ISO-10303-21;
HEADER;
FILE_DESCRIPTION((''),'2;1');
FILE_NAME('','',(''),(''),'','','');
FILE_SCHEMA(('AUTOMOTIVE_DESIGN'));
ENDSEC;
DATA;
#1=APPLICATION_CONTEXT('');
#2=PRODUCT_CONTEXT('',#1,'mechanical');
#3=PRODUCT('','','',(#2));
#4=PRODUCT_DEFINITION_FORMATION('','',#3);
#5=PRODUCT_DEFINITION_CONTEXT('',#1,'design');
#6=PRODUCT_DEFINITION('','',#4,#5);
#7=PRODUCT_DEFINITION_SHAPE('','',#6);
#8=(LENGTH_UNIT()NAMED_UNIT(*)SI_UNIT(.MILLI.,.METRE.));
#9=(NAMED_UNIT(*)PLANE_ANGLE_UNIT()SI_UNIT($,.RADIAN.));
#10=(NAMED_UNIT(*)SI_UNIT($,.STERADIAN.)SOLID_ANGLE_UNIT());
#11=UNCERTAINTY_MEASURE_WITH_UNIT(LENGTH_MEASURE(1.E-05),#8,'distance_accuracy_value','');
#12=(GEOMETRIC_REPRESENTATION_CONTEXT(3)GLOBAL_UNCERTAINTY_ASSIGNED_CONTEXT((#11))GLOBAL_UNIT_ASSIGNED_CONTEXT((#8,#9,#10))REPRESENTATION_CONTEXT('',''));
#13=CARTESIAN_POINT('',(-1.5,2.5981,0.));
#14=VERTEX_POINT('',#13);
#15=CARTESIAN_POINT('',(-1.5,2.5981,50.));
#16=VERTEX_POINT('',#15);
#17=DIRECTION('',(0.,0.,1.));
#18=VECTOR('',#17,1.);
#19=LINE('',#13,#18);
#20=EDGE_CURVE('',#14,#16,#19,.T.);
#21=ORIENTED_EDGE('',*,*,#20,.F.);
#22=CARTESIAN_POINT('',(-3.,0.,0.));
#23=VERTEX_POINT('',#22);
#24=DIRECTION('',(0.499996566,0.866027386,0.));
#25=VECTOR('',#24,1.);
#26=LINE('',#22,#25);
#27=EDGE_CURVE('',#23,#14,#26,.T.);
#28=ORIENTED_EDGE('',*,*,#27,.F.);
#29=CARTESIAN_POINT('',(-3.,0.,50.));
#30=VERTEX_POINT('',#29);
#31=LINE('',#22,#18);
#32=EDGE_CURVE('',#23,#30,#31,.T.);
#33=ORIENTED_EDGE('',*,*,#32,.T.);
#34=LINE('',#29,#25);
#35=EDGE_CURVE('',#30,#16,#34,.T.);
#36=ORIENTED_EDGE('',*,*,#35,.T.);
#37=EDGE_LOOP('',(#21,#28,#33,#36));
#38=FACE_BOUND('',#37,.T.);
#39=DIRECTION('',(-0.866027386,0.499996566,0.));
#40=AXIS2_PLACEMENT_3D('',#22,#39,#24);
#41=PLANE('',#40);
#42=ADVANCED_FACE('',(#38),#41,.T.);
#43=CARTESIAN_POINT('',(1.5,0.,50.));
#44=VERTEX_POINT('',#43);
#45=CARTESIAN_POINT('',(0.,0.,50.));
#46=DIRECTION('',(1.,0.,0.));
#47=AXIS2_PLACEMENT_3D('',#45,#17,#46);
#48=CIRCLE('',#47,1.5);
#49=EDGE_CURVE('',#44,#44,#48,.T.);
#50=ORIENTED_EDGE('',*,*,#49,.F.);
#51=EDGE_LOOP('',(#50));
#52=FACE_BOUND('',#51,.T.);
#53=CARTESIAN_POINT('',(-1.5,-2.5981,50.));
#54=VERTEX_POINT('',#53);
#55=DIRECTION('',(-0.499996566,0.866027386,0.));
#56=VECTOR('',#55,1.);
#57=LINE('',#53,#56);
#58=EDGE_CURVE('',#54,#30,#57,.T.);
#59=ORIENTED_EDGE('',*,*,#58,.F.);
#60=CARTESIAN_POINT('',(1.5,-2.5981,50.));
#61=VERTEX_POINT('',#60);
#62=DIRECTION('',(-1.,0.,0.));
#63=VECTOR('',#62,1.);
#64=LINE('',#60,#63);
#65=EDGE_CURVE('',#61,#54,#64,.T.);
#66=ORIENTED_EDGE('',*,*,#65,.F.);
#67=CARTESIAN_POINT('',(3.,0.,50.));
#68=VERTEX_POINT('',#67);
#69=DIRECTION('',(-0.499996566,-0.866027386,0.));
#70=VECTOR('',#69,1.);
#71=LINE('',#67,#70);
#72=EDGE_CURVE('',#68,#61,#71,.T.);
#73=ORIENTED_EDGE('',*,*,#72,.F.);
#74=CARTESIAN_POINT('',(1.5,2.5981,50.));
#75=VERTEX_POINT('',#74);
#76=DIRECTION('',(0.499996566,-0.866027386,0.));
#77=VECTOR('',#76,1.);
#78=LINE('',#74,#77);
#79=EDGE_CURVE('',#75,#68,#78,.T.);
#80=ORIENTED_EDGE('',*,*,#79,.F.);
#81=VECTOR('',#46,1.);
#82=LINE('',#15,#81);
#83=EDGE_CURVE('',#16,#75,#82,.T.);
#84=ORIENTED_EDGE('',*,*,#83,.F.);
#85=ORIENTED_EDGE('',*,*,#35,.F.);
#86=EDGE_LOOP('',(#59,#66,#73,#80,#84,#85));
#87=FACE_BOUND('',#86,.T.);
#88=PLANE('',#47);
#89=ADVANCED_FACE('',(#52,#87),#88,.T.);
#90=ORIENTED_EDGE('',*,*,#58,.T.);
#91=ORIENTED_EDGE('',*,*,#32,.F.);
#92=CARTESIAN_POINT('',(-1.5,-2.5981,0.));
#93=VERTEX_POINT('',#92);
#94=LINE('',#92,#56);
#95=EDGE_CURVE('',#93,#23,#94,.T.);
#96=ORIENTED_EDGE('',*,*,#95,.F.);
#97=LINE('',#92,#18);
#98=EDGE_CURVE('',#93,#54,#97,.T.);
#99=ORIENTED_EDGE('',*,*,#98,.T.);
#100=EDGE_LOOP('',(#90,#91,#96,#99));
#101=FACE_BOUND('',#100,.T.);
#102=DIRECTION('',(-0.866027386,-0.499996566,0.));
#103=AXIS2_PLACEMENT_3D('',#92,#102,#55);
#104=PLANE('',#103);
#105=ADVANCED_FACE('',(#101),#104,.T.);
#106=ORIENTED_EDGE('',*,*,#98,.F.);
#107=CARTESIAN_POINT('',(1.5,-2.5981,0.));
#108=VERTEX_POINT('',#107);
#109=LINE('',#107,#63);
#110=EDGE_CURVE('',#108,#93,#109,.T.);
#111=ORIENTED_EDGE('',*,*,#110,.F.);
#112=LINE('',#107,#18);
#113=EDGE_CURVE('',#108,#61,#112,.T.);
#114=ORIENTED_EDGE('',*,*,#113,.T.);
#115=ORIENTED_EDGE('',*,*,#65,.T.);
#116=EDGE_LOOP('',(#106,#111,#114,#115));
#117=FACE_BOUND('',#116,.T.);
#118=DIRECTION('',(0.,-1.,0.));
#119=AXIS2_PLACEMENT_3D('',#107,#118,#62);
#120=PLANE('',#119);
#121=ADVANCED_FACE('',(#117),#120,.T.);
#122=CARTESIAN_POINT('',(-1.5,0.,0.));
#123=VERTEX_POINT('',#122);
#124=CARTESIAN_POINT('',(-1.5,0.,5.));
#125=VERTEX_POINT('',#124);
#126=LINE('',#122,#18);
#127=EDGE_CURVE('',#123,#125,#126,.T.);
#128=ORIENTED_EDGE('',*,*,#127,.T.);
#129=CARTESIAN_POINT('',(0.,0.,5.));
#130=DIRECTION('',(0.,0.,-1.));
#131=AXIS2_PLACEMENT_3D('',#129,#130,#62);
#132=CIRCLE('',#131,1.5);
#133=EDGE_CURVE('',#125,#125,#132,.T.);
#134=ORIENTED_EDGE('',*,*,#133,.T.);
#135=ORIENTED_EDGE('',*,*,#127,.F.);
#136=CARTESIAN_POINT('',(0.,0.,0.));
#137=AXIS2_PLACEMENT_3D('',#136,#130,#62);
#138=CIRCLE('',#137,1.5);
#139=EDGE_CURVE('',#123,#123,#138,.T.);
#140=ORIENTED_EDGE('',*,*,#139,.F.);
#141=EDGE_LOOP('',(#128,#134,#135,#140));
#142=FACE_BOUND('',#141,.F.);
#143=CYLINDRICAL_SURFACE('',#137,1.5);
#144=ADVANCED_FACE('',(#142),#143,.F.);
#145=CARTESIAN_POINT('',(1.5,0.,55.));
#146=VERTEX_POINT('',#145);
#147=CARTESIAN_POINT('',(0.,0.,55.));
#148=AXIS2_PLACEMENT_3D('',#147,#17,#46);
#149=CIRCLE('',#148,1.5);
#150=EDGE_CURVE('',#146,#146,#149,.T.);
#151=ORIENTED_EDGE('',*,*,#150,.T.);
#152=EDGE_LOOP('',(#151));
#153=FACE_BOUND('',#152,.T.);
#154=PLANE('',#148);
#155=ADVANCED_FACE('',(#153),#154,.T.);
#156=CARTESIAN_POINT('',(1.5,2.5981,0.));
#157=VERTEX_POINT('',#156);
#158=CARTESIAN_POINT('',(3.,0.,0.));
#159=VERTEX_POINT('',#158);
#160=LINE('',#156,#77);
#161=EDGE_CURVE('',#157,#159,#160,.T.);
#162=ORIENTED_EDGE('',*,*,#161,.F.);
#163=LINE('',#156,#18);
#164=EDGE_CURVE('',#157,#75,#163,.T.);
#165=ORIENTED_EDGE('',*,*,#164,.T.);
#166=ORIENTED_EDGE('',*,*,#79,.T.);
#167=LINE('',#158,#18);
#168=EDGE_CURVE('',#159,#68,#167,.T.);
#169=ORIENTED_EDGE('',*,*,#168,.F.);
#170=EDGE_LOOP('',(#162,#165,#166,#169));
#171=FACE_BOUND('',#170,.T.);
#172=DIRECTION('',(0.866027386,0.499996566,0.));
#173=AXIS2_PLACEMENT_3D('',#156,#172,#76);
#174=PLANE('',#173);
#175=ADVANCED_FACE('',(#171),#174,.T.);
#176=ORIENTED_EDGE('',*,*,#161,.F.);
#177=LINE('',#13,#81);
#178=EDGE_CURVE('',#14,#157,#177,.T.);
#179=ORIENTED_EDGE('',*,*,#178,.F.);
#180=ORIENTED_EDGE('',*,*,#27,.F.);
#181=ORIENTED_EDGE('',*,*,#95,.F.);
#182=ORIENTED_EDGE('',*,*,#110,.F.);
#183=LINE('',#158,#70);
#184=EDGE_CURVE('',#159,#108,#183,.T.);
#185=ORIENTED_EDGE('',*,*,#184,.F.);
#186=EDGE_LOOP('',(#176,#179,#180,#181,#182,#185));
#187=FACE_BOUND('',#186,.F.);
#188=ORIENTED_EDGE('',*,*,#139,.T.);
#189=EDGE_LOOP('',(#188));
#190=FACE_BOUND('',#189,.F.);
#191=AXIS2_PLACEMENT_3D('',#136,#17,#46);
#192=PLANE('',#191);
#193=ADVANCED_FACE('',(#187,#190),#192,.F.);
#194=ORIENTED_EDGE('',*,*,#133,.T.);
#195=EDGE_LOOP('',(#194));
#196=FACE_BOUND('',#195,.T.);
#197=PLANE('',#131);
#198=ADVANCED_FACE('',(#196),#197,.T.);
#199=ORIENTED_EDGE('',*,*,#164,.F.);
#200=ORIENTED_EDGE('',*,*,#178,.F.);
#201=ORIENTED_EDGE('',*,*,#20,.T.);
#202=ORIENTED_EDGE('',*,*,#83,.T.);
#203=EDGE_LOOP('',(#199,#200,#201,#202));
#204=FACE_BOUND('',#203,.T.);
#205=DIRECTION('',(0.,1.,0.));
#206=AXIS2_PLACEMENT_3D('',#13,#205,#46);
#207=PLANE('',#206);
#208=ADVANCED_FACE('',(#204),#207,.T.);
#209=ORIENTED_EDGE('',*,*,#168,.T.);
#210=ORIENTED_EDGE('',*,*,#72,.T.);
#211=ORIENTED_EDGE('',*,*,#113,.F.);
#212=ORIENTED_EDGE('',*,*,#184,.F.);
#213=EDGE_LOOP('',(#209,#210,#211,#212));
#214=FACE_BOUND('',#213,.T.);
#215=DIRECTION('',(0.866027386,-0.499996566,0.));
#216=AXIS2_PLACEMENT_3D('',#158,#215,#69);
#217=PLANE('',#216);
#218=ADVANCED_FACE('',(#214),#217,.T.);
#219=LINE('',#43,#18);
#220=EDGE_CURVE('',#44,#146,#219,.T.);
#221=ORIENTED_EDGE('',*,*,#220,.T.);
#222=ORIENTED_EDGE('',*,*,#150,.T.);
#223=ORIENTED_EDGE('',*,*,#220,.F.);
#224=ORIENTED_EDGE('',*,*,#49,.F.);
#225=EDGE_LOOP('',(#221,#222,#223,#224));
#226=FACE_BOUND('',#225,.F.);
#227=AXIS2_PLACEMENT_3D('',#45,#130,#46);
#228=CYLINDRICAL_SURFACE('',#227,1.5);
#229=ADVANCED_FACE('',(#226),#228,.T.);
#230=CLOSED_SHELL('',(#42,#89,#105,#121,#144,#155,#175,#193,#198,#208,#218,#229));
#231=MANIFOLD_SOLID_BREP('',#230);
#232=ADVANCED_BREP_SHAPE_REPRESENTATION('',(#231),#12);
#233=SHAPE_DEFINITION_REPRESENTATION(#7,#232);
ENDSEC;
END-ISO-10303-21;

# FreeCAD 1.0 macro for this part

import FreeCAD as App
import Part
import Sketcher
Q = App.Units.Quantity

doc = App.newDocument("Part")
body = doc.addObject("PartDesign::Body", "Body")

sketch1 = body.newObject("Sketcher::SketchObject", "Sketch")
sketch1.AttachmentSupport = (doc.getObject("XY_Plane"), [""])
sketch1.MapMode = "FlatFace"
sketch1.addGeometry(Part.LineSegment(App.Vector(-1.5, 2.6, 0), App.Vector(-3, 0, 0)), False)
sketch1.addGeometry(Part.LineSegment(App.Vector(-3, 0, 0), App.Vector(-1.5, -2.6, 0)), False)
sketch1.addGeometry(Part.LineSegment(App.Vector(-1.5, -2.6, 0), App.Vector(1.5, -2.6, 0)), False)
sketch1.addGeometry(Part.LineSegment(App.Vector(1.5, -2.6, 0), App.Vector(3, 0, 0)), False)
sketch1.addGeometry(Part.LineSegment(App.Vector(3, 0, 0), App.Vector(1.5, 2.6, 0)), False)
sketch1.addGeometry(Part.LineSegment(App.Vector(1.5, 2.6, 0), App.Vector(-1.5, 2.6, 0)), False)
sketch1.addConstraint(Sketcher.Constraint("Coincident", 0, 2, 1, 1))
sketch1.addConstraint(Sketcher.Constraint("Coincident", 1, 2, 2, 1))
sketch1.addConstraint(Sketcher.Constraint("Coincident", 2, 2, 3, 1))
sketch1.addConstraint(Sketcher.Constraint("Coincident", 3, 2, 4, 1))
sketch1.addConstraint(Sketcher.Constraint("Coincident", 4, 2, 5, 1))
sketch1.addConstraint(Sketcher.Constraint("Coincident", 5, 2, 0, 1))
sketch1.addConstraint(Sketcher.Constraint("Horizontal", 2))
sketch1.addConstraint(Sketcher.Constraint("Horizontal", 5))
sketch1.addConstraint(Sketcher.Constraint("Symmetric", 0, 2, 3, 2, -1, 1))
sketch1.addConstraint(Sketcher.Constraint("Symmetric", 1, 2, 4, 2, -1, 1))
sketch1.addConstraint(Sketcher.Constraint("PointOnObject", 0, 2, -1))
sketch1.addConstraint(Sketcher.Constraint("Parallel", 0, 3))
sketch1.addConstraint(Sketcher.Constraint("Vertical", 2, 2, 4, 2))
sketch1.addConstraint(Sketcher.Constraint("DistanceX", 0, 2, 3, 2, 6.0))
sketch1.addConstraint(Sketcher.Constraint("DistanceX", 2, 1, 2, 2, 3.0))
sketch1.addConstraint(Sketcher.Constraint("Angle", 0, Q("-119.9998 deg")))
pad1 = body.newObject("PartDesign::Pad", "Pad")
pad1.Profile = sketch1
pad1.Length = 50

sketch2 = body.newObject("Sketcher::SketchObject", "Sketch001")
sketch2.AttachmentSupport = (doc.getObject("XY_Plane"), [""])
sketch2.MapMode = "FlatFace"
sketch2.AttachmentOffset = App.Placement(App.Vector(0, 0, 50), App.Rotation())
sketch2.addGeometry(Part.Circle(App.Vector(0, 0, 0), App.Vector(0, 0, 1), 1.5), False)
sketch2.addConstraint(Sketcher.Constraint("Coincident", 0, 3, -1, 1))
sketch2.addConstraint(Sketcher.Constraint("Diameter", 0, 3.0))
pad2 = body.newObject("PartDesign::Pad", "Pad001")
pad2.Profile = sketch2
pad2.Length = 5

sketch3 = body.newObject("Sketcher::SketchObject", "Sketch002")
sketch3.AttachmentSupport = (doc.getObject("XY_Plane"), [""])
sketch3.MapMode = "FlatFace"
sketch3.addGeometry(Part.Circle(App.Vector(0, 0, 0), App.Vector(0, 0, 1), 1.5), False)
sketch3.addConstraint(Sketcher.Constraint("Coincident", 0, 3, -1, 1))
sketch3.addConstraint(Sketcher.Constraint("Diameter", 0, 3.0))
pocket1 = body.newObject("PartDesign::Pocket", "Pocket")
pocket1.Profile = sketch3
pocket1.Length = 5
pocket1.Reversed = True

doc.recompute()
